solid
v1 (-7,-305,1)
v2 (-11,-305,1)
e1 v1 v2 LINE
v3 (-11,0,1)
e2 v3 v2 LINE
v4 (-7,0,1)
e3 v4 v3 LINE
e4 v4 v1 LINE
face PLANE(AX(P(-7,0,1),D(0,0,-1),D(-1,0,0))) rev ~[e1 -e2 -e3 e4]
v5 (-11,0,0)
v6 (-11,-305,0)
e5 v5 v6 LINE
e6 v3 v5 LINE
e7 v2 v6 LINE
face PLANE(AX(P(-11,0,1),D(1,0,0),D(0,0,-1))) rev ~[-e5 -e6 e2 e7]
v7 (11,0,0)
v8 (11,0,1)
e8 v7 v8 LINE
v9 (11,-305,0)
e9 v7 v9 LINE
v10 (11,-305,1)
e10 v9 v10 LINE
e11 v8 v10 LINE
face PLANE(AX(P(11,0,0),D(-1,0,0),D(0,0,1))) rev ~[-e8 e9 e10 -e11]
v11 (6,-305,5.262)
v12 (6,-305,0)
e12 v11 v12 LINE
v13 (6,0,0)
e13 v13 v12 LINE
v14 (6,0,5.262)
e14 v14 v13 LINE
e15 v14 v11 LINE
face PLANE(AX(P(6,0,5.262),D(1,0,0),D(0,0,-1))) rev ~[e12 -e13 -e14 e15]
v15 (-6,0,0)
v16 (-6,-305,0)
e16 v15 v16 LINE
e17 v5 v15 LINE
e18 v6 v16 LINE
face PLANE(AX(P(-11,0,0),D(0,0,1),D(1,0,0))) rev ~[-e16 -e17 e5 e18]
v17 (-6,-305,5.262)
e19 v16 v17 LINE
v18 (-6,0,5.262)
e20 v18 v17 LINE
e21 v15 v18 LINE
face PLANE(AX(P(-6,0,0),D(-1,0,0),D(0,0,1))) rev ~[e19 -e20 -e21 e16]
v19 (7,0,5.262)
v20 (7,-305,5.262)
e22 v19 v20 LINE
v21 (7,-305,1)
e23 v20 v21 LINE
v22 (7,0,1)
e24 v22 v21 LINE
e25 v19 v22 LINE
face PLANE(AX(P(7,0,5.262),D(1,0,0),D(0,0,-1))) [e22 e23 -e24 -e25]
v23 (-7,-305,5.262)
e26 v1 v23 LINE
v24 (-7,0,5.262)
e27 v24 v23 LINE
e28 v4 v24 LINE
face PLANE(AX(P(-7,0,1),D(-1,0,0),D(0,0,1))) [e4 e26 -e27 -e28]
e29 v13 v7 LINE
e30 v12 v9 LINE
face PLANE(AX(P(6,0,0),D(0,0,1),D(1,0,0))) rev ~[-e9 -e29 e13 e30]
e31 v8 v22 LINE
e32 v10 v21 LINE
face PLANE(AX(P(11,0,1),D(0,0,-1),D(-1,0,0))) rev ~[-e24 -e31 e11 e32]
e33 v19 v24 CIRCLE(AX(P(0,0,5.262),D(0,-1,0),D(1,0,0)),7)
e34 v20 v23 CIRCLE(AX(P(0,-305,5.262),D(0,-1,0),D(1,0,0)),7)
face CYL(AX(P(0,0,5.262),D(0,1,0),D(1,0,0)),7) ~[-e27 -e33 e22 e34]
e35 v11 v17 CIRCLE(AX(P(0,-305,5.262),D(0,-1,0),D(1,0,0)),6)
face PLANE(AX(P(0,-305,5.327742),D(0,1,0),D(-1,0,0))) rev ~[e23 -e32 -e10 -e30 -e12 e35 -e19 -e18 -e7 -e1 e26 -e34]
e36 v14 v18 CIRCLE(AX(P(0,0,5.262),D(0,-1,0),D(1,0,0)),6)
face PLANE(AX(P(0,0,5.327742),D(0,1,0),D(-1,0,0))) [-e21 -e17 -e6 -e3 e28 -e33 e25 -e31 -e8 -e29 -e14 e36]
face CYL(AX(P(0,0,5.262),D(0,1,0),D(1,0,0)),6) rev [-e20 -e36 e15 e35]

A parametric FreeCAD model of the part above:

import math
import FreeCAD as App
import Part
import Sketcher
from FreeCAD import Vector

doc = App.newDocument("Part")
body = doc.addObject("PartDesign::Body", "Body")

# Sketch on XZ plane
sketch1 = body.newObject("Sketcher::SketchObject", "Sketch")
sketch1.AttachmentSupport = (doc.getObject("XZ_Plane"), [""])
sketch1.MapMode = "FlatFace"
sketch1.addGeometry(Part.ArcOfCircle(Part.Circle(Vector(0, 5.3, 0), Vector(0, 0, 1), 6), math.radians(0), math.radians(180)), False)
sketch1.addGeometry(Part.LineSegment(Vector(6, 5.3, 0), Vector(6, 0, 0)), False)
sketch1.addGeometry(Part.LineSegment(Vector(6, 0, 0), Vector(11, 0, 0)), False)
sketch1.addGeometry(Part.LineSegment(Vector(11, 0, 0), Vector(11, 1, 0)), False)
sketch1.addGeometry(Part.LineSegment(Vector(11, 1, 0), Vector(7, 1, 0)), False)
sketch1.addGeometry(Part.LineSegment(Vector(7, 1, 0), Vector(7, 5.3, 0)), False)
sketch1.addGeometry(Part.ArcOfCircle(Part.Circle(Vector(0, 5.3, 0), Vector(0, 0, 1), 7), math.radians(0), math.radians(180)), False)
sketch1.addGeometry(Part.LineSegment(Vector(-7, 5.3, 0), Vector(-7, 1, 0)), False)
sketch1.addGeometry(Part.LineSegment(Vector(-7, 1, 0), Vector(-11, 1, 0)), False)
sketch1.addGeometry(Part.LineSegment(Vector(-11, 1, 0), Vector(-11, 0, 0)), False)
sketch1.addGeometry(Part.LineSegment(Vector(-11, 0, 0), Vector(-6, 0, 0)), False)
sketch1.addGeometry(Part.LineSegment(Vector(-6, 0, 0), Vector(-6, 5.3, 0)), False)
sketch1.addConstraint(Sketcher.Constraint("Tangent", 0, 1, 1, 1))
sketch1.addConstraint(Sketcher.Constraint("Coincident", 1, 2, 2, 1))
sketch1.addConstraint(Sketcher.Constraint("Coincident", 2, 2, 3, 1))
sketch1.addConstraint(Sketcher.Constraint("Coincident", 3, 2, 4, 1))
sketch1.addConstraint(Sketcher.Constraint("Coincident", 4, 2, 5, 1))
sketch1.addConstraint(Sketcher.Constraint("Tangent", 5, 2, 6, 1))
sketch1.addConstraint(Sketcher.Constraint("Tangent", 6, 2, 7, 1))
sketch1.addConstraint(Sketcher.Constraint("Coincident", 7, 2, 8, 1))
sketch1.addConstraint(Sketcher.Constraint("Coincident", 8, 2, 9, 1))
sketch1.addConstraint(Sketcher.Constraint("Coincident", 9, 2, 10, 1))
sketch1.addConstraint(Sketcher.Constraint("Coincident", 10, 2, 11, 1))
sketch1.addConstraint(Sketcher.Constraint("Tangent", 11, 2, 0, 2))
sketch1.addConstraint(Sketcher.Constraint("Vertical", 1))
sketch1.addConstraint(Sketcher.Constraint("Horizontal", 2))
sketch1.addConstraint(Sketcher.Constraint("Vertical", 3))
sketch1.addConstraint(Sketcher.Constraint("Horizontal", 4))
sketch1.addConstraint(Sketcher.Constraint("Vertical", 5))
sketch1.addConstraint(Sketcher.Constraint("Vertical", 7))
sketch1.addConstraint(Sketcher.Constraint("Horizontal", 8))
sketch1.addConstraint(Sketcher.Constraint("Vertical", 9))
sketch1.addConstraint(Sketcher.Constraint("Horizontal", 10))
sketch1.addConstraint(Sketcher.Constraint("Vertical", 11))
sketch1.addConstraint(Sketcher.Constraint("Coincident", 6, 3, 0, 3))
sketch1.addConstraint(Sketcher.Constraint("Symmetric", 2, 2, 9, 2, -1, 1))
sketch1.addConstraint(Sketcher.Constraint("Symmetric", 4, 2, 7, 2, -2))
sketch1.addConstraint(Sketcher.Constraint("PointOnObject", 1, 2, -1))
sketch1.addConstraint(Sketcher.Constraint("Radius", 0, 6.0))
sketch1.addConstraint(Sketcher.Constraint("Radius", 6, 7.0))
sketch1.addConstraint(Sketcher.Constraint("DistanceX", 2, 1, 2, 2, 5.0))
sketch1.addConstraint(Sketcher.Constraint("DistanceY", 3, 1, 3, 2, 1.0))
sketch1.addConstraint(Sketcher.Constraint("DistanceY", 1, 2, 1, 1, 5.262))
pad1 = body.newObject("PartDesign::Pad", "Pad")
pad1.Profile = sketch1
pad1.Length = 305

doc.recompute()
